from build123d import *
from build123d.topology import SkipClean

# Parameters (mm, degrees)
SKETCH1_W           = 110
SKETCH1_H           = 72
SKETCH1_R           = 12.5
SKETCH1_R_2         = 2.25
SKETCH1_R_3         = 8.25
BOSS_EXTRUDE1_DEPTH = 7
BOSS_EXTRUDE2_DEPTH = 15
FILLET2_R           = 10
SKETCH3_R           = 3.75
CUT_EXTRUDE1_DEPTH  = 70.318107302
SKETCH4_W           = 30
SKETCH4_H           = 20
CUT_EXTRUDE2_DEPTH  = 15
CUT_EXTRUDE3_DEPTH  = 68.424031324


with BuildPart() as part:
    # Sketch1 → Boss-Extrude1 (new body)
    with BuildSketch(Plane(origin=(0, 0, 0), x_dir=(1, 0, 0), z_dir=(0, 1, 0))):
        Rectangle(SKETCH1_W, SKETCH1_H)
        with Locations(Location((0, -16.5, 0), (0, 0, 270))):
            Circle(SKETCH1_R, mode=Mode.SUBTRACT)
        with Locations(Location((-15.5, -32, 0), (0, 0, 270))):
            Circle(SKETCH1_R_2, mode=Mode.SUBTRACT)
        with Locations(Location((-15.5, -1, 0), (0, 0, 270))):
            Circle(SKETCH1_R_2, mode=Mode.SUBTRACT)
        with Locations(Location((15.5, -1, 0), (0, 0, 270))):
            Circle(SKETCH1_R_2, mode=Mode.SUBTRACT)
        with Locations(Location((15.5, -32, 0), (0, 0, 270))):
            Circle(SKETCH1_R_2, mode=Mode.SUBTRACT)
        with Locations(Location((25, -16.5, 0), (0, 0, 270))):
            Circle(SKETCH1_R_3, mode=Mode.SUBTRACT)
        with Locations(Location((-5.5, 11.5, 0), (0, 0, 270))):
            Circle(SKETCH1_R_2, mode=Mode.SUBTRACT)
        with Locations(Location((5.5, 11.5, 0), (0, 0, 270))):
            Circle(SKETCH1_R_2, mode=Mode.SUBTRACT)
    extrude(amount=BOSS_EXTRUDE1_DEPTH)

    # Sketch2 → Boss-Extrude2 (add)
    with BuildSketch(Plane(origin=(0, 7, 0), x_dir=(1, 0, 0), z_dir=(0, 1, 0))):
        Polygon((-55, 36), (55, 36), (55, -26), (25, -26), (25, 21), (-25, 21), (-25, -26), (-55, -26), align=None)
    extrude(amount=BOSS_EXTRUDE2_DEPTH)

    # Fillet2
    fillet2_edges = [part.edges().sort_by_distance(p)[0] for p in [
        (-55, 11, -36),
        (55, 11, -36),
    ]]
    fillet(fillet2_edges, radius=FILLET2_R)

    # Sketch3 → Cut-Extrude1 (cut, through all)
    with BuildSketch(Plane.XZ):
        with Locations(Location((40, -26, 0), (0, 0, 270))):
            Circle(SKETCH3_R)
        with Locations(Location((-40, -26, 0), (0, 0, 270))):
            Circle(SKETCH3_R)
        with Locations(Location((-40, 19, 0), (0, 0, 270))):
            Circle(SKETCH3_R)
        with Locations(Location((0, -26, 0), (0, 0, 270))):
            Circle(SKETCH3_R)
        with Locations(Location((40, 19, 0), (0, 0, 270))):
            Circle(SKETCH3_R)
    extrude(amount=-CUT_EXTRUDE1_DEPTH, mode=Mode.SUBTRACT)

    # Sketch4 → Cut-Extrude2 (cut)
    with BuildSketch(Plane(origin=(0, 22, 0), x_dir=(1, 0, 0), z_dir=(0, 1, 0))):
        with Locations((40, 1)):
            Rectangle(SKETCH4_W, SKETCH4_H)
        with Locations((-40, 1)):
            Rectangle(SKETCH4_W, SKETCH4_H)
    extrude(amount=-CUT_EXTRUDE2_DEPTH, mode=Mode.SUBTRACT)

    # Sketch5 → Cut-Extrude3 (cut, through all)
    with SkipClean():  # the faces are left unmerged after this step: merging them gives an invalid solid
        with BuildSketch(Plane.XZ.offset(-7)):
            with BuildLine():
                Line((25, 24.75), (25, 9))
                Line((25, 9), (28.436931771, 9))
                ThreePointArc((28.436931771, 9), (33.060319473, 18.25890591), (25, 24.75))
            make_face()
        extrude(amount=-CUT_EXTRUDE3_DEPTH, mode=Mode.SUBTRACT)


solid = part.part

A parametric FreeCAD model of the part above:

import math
import FreeCAD as App
import Part
import Sketcher
Q = App.Units.Quantity


def edges_at(feature, points):
    """Names of the edges that pass closest to the given points."""
    edges = feature.Shape.Edges
    near = lambda p: min(range(len(edges)), key=lambda i: edges[i].distToShape(Part.Vertex(*p))[0])
    return sorted({f"Edge{near(p) + 1}" for p in points})


def add_polygon(sketch, points):
    """Adds a closed chain of lines whose ends are joined by coincident constraints."""
    first, n = sketch.GeometryCount, len(points)
    for a, b in zip(points, points[1:] + points[:1]):
        sketch.addGeometry(Part.LineSegment(App.Vector(*a, 0), App.Vector(*b, 0)), False)
    for i in range(n):
        sketch.addConstraint(Sketcher.Constraint("Coincident", first + i, 2, first + (i + 1) % n, 1))

doc = App.newDocument("Part")
body = doc.addObject("PartDesign::Body", "Body")

# Sketch on XZ plane
sketch1 = body.newObject("Sketcher::SketchObject", "Sketch")
sketch1.AttachmentSupport = (doc.getObject("XZ_Plane"), [""])
sketch1.MapMode = "FlatFace"
add_polygon(sketch1, [(-55, -36), (-55, 36), (55, 36), (55, -36)])  # lines 0-3
sketch1.addGeometry(Part.Circle(App.Vector(-15.5, 32, 0), App.Vector(0, 0, 1), 2.2), False)  # 4
sketch1.addGeometry(Part.Circle(App.Vector(0, 16.5, 0), App.Vector(0, 0, 1), 12.5), False)  # 5
sketch1.addGeometry(Part.Circle(App.Vector(15.5, 32, 0), App.Vector(0, 0, 1), 2.2), False)  # 6
sketch1.addGeometry(Part.Circle(App.Vector(25, 16.5, 0), App.Vector(0, 0, 1), 8.2), False)  # 7
sketch1.addGeometry(Part.Circle(App.Vector(-15.5, 1, 0), App.Vector(0, 0, 1), 2.2), False)  # 8
sketch1.addGeometry(Part.Circle(App.Vector(-5.5, -11.5, 0), App.Vector(0, 0, 1), 2.2), False)  # 9
sketch1.addGeometry(Part.Circle(App.Vector(5.5, -11.5, 0), App.Vector(0, 0, 1), 2.2), False)  # 10
sketch1.addGeometry(Part.Circle(App.Vector(15.5, 1, 0), App.Vector(0, 0, 1), 2.2), False)  # 11
sketch1.addConstraint([
    Sketcher.Constraint("Vertical", 0),
    Sketcher.Constraint("Horizontal", 1),
    Sketcher.Constraint("Vertical", 2),
    Sketcher.Constraint("Horizontal", 3),
    Sketcher.Constraint("Equal", 4, 6),
    Sketcher.Constraint("Equal", 6, 8),
    Sketcher.Constraint("Equal", 8, 9),
    Sketcher.Constraint("Equal", 9, 10),
    Sketcher.Constraint("Equal", 10, 11),
    Sketcher.Constraint("Symmetric", 0, 2, 2, 2, -1, 1),
    Sketcher.Constraint("Symmetric", 4, 3, 6, 3, -2),
    Sketcher.Constraint("Symmetric", 9, 3, 10, 3, -2),
    Sketcher.Constraint("Symmetric", 8, 3, 11, 3, -2),
    Sketcher.Constraint("PointOnObject", 5, 3, -2),
    Sketcher.Constraint("Horizontal", 5, 3, 7, 3),
    Sketcher.Constraint("Vertical", 4, 3, 8, 3),
    Sketcher.Constraint("Diameter", 5, Q("25 mm")),
    Sketcher.Constraint("Diameter", 4, Q("4.5 mm")),
    Sketcher.Constraint("Diameter", 7, Q("16.5 mm")),
    Sketcher.Constraint("DistanceX", 1, 1, 1, 2, Q("110 mm")),
    Sketcher.Constraint("DistanceY", 0, 1, 0, 2, Q("72 mm")),
    Sketcher.Constraint("DistanceY", -1, 1, 4, 3, Q("32 mm")),
    Sketcher.Constraint("DistanceX", -1, 1, 7, 3, Q("25 mm")),
    Sketcher.Constraint("DistanceY", -1, 1, 8, 3, Q("1 mm")),
    Sketcher.Constraint("DistanceX", 4, 3, 6, 3, Q("31 mm")),
    Sketcher.Constraint("DistanceX", 8, 3, 9, 3, Q("10 mm")),
    Sketcher.Constraint("DistanceY", 9, 3, 5, 3, Q("28 mm")),
    Sketcher.Constraint("DistanceY", -1, 1, 5, 3, Q("16.5 mm")),
])
pad1 = body.newObject("PartDesign::Pad", "Pad")
pad1.Profile = sketch1
pad1.Length = 7
pad1.Reversed = True

# Sketch on XZ plane
sketch2 = body.newObject("Sketcher::SketchObject", "Sketch001")
sketch2.AttachmentSupport = (doc.getObject("XZ_Plane"), [""])
sketch2.MapMode = "FlatFace"
sketch2.AttachmentOffset = App.Placement(App.Vector(0, 0, -7), App.Rotation())
add_polygon(sketch2, [(55, -36), (-55, -36), (-55, 26), (-25, 26), (-25, -21), (25, -21), (25, 26), (55, 26)])  # lines 0-7
sketch2.addConstraint([
    Sketcher.Constraint("Horizontal", 0),
    Sketcher.Constraint("Vertical", 1),
    Sketcher.Constraint("Horizontal", 2),
    Sketcher.Constraint("Vertical", 3),
    Sketcher.Constraint("Horizontal", 4),
    Sketcher.Constraint("Vertical", 5),
    Sketcher.Constraint("Horizontal", 6),
    Sketcher.Constraint("Vertical", 7),
    Sketcher.Constraint("Symmetric", 2, 2, 5, 2, -2),
    Sketcher.Constraint("Equal", 2, 6),
    Sketcher.Constraint("DistanceX", 0, 2, 0, 1, Q("110 mm")),
    Sketcher.Constraint("DistanceX", 2, 1, 2, 2, Q("30 mm")),
    Sketcher.Constraint("DistanceY", 1, 1, 1, 2, Q("62 mm")),
    Sketcher.Constraint("DistanceY", 3, 2, 3, 1, Q("47 mm")),
    Sketcher.Constraint("DistanceY", 0, 2, -1, 1, Q("36 mm")),
])
pad2 = body.newObject("PartDesign::Pad", "Pad001")
pad2.Profile = sketch2
pad2.Length = 15
pad2.Reversed = True
doc.recompute()

fillet = body.newObject("PartDesign::Fillet", "Fillet")
fillet.Base = (pad2, edges_at(pad2, [(-55, 11, -36), (55, 11, -36)]))
fillet.Radius = 10

# Sketch on XZ plane
sketch3 = body.newObject("Sketcher::SketchObject", "Sketch002")
sketch3.AttachmentSupport = (doc.getObject("XZ_Plane"), [""])
sketch3.MapMode = "FlatFace"
sketch3.addGeometry([
    Part.Circle(App.Vector(40, -26, 0), App.Vector(0, 0, 1), 3.8),  # 0
    Part.Circle(App.Vector(-40, -26, 0), App.Vector(0, 0, 1), 3.8),  # 1
    Part.Circle(App.Vector(-40, 19, 0), App.Vector(0, 0, 1), 3.8),  # 2
    Part.Circle(App.Vector(0, -26, 0), App.Vector(0, 0, 1), 3.8),  # 3
    Part.Circle(App.Vector(40, 19, 0), App.Vector(0, 0, 1), 3.8),  # 4
], False)
sketch3.addConstraint([
    Sketcher.Constraint("Equal", 0, 1),
    Sketcher.Constraint("Equal", 1, 2),
    Sketcher.Constraint("Equal", 2, 3),
    Sketcher.Constraint("Equal", 3, 4),
    Sketcher.Constraint("Symmetric", 0, 3, 1, 3, -2),
    Sketcher.Constraint("Symmetric", 2, 3, 4, 3, -2),
    Sketcher.Constraint("PointOnObject", 3, 3, -2),
    Sketcher.Constraint("Horizontal", 1, 3, 3, 3),
    Sketcher.Constraint("Vertical", 1, 3, 2, 3),
    Sketcher.Constraint("Diameter", 0, Q("7.5 mm")),
    Sketcher.Constraint("DistanceX", -1, 1, 0, 3, Q("40 mm")),
    Sketcher.Constraint("DistanceY", 0, 3, -1, 1, Q("26 mm")),
    Sketcher.Constraint("DistanceY", -1, 1, 2, 3, Q("19 mm")),
])
pocket1 = body.newObject("PartDesign::Pocket", "Pocket")
pocket1.Profile = sketch3
pocket1.Type = "ThroughAll"

# Sketch on XZ plane
sketch4 = body.newObject("Sketcher::SketchObject", "Sketch003")
sketch4.AttachmentSupport = (doc.getObject("XZ_Plane"), [""])
sketch4.MapMode = "FlatFace"
sketch4.AttachmentOffset = App.Placement(App.Vector(0, 0, -22), App.Rotation())
add_polygon(sketch4, [(25, -11), (25, 9), (55, 9), (55, -11)])  # lines 0-3
add_polygon(sketch4, [(-55, -11), (-55, 9), (-25, 9), (-25, -11)])  # lines 4-7
sketch4.addConstraint([
    Sketcher.Constraint("Vertical", 0),
    Sketcher.Constraint("Horizontal", 1),
    Sketcher.Constraint("Vertical", 2),
    Sketcher.Constraint("Horizontal", 3),
    Sketcher.Constraint("Vertical", 4),
    Sketcher.Constraint("Horizontal", 5),
    Sketcher.Constraint("Vertical", 6),
    Sketcher.Constraint("Horizontal", 7),
    Sketcher.Constraint("Symmetric", 1, 2, 4, 2, -2),
    Sketcher.Constraint("Symmetric", 3, 2, 6, 2, -2),
    Sketcher.Constraint("DistanceX", 1, 1, 1, 2, Q("30 mm")),
    Sketcher.Constraint("DistanceY", 0, 1, 0, 2, Q("20 mm")),
    Sketcher.Constraint("DistanceX", -1, 1, 0, 2, Q("25 mm")),
    Sketcher.Constraint("DistanceY", -1, 1, 0, 2, Q("9 mm")),
])
pocket2 = body.newObject("PartDesign::Pocket", "Pocket001")
pocket2.Profile = sketch4
pocket2.Length = 15
pocket2.Reversed = True

# Sketch on XZ plane
sketch5 = body.newObject("Sketcher::SketchObject", "Sketch004")
sketch5.AttachmentSupport = (doc.getObject("XZ_Plane"), [""])
sketch5.MapMode = "FlatFace"
sketch5.AttachmentOffset = App.Placement(App.Vector(0, 0, -7), App.Rotation())
sketch5.addGeometry([
    Part.LineSegment(App.Vector(25, 24.8, 0), App.Vector(25, 9, 0)),
    Part.LineSegment(App.Vector(25, 9, 0), App.Vector(28.4, 9, 0)),
    Part.ArcOfCircle(Part.Circle(App.Vector(25, 16.5, 0), App.Vector(0, 0, 1), 8.2), math.radians(-65), math.radians(90)),
], False)
sketch5.addConstraint([
    Sketcher.Constraint("Coincident", 0, 2, 1, 1),
    Sketcher.Constraint("Coincident", 1, 2, 2, 1),
    Sketcher.Constraint("Coincident", 2, 2, 0, 1),
    Sketcher.Constraint("Vertical", 0),
    Sketcher.Constraint("Horizontal", 1),
    Sketcher.Constraint("Vertical", 2, 3, 0, 2),
    Sketcher.Constraint("Radius", 2, Q("8.25 mm")),
    Sketcher.Constraint("DistanceX", -1, 1, 2, 3, Q("25 mm")),
    Sketcher.Constraint("DistanceY", -1, 1, 0, 2, Q("9 mm")),
    Sketcher.Constraint("DistanceY", 0, 2, 0, 1, Q("15.75 mm")),
])
pocket3 = body.newObject("PartDesign::Pocket", "Pocket002")
pocket3.Profile = sketch5
pocket3.Type = "ThroughAll"

doc.recompute()
